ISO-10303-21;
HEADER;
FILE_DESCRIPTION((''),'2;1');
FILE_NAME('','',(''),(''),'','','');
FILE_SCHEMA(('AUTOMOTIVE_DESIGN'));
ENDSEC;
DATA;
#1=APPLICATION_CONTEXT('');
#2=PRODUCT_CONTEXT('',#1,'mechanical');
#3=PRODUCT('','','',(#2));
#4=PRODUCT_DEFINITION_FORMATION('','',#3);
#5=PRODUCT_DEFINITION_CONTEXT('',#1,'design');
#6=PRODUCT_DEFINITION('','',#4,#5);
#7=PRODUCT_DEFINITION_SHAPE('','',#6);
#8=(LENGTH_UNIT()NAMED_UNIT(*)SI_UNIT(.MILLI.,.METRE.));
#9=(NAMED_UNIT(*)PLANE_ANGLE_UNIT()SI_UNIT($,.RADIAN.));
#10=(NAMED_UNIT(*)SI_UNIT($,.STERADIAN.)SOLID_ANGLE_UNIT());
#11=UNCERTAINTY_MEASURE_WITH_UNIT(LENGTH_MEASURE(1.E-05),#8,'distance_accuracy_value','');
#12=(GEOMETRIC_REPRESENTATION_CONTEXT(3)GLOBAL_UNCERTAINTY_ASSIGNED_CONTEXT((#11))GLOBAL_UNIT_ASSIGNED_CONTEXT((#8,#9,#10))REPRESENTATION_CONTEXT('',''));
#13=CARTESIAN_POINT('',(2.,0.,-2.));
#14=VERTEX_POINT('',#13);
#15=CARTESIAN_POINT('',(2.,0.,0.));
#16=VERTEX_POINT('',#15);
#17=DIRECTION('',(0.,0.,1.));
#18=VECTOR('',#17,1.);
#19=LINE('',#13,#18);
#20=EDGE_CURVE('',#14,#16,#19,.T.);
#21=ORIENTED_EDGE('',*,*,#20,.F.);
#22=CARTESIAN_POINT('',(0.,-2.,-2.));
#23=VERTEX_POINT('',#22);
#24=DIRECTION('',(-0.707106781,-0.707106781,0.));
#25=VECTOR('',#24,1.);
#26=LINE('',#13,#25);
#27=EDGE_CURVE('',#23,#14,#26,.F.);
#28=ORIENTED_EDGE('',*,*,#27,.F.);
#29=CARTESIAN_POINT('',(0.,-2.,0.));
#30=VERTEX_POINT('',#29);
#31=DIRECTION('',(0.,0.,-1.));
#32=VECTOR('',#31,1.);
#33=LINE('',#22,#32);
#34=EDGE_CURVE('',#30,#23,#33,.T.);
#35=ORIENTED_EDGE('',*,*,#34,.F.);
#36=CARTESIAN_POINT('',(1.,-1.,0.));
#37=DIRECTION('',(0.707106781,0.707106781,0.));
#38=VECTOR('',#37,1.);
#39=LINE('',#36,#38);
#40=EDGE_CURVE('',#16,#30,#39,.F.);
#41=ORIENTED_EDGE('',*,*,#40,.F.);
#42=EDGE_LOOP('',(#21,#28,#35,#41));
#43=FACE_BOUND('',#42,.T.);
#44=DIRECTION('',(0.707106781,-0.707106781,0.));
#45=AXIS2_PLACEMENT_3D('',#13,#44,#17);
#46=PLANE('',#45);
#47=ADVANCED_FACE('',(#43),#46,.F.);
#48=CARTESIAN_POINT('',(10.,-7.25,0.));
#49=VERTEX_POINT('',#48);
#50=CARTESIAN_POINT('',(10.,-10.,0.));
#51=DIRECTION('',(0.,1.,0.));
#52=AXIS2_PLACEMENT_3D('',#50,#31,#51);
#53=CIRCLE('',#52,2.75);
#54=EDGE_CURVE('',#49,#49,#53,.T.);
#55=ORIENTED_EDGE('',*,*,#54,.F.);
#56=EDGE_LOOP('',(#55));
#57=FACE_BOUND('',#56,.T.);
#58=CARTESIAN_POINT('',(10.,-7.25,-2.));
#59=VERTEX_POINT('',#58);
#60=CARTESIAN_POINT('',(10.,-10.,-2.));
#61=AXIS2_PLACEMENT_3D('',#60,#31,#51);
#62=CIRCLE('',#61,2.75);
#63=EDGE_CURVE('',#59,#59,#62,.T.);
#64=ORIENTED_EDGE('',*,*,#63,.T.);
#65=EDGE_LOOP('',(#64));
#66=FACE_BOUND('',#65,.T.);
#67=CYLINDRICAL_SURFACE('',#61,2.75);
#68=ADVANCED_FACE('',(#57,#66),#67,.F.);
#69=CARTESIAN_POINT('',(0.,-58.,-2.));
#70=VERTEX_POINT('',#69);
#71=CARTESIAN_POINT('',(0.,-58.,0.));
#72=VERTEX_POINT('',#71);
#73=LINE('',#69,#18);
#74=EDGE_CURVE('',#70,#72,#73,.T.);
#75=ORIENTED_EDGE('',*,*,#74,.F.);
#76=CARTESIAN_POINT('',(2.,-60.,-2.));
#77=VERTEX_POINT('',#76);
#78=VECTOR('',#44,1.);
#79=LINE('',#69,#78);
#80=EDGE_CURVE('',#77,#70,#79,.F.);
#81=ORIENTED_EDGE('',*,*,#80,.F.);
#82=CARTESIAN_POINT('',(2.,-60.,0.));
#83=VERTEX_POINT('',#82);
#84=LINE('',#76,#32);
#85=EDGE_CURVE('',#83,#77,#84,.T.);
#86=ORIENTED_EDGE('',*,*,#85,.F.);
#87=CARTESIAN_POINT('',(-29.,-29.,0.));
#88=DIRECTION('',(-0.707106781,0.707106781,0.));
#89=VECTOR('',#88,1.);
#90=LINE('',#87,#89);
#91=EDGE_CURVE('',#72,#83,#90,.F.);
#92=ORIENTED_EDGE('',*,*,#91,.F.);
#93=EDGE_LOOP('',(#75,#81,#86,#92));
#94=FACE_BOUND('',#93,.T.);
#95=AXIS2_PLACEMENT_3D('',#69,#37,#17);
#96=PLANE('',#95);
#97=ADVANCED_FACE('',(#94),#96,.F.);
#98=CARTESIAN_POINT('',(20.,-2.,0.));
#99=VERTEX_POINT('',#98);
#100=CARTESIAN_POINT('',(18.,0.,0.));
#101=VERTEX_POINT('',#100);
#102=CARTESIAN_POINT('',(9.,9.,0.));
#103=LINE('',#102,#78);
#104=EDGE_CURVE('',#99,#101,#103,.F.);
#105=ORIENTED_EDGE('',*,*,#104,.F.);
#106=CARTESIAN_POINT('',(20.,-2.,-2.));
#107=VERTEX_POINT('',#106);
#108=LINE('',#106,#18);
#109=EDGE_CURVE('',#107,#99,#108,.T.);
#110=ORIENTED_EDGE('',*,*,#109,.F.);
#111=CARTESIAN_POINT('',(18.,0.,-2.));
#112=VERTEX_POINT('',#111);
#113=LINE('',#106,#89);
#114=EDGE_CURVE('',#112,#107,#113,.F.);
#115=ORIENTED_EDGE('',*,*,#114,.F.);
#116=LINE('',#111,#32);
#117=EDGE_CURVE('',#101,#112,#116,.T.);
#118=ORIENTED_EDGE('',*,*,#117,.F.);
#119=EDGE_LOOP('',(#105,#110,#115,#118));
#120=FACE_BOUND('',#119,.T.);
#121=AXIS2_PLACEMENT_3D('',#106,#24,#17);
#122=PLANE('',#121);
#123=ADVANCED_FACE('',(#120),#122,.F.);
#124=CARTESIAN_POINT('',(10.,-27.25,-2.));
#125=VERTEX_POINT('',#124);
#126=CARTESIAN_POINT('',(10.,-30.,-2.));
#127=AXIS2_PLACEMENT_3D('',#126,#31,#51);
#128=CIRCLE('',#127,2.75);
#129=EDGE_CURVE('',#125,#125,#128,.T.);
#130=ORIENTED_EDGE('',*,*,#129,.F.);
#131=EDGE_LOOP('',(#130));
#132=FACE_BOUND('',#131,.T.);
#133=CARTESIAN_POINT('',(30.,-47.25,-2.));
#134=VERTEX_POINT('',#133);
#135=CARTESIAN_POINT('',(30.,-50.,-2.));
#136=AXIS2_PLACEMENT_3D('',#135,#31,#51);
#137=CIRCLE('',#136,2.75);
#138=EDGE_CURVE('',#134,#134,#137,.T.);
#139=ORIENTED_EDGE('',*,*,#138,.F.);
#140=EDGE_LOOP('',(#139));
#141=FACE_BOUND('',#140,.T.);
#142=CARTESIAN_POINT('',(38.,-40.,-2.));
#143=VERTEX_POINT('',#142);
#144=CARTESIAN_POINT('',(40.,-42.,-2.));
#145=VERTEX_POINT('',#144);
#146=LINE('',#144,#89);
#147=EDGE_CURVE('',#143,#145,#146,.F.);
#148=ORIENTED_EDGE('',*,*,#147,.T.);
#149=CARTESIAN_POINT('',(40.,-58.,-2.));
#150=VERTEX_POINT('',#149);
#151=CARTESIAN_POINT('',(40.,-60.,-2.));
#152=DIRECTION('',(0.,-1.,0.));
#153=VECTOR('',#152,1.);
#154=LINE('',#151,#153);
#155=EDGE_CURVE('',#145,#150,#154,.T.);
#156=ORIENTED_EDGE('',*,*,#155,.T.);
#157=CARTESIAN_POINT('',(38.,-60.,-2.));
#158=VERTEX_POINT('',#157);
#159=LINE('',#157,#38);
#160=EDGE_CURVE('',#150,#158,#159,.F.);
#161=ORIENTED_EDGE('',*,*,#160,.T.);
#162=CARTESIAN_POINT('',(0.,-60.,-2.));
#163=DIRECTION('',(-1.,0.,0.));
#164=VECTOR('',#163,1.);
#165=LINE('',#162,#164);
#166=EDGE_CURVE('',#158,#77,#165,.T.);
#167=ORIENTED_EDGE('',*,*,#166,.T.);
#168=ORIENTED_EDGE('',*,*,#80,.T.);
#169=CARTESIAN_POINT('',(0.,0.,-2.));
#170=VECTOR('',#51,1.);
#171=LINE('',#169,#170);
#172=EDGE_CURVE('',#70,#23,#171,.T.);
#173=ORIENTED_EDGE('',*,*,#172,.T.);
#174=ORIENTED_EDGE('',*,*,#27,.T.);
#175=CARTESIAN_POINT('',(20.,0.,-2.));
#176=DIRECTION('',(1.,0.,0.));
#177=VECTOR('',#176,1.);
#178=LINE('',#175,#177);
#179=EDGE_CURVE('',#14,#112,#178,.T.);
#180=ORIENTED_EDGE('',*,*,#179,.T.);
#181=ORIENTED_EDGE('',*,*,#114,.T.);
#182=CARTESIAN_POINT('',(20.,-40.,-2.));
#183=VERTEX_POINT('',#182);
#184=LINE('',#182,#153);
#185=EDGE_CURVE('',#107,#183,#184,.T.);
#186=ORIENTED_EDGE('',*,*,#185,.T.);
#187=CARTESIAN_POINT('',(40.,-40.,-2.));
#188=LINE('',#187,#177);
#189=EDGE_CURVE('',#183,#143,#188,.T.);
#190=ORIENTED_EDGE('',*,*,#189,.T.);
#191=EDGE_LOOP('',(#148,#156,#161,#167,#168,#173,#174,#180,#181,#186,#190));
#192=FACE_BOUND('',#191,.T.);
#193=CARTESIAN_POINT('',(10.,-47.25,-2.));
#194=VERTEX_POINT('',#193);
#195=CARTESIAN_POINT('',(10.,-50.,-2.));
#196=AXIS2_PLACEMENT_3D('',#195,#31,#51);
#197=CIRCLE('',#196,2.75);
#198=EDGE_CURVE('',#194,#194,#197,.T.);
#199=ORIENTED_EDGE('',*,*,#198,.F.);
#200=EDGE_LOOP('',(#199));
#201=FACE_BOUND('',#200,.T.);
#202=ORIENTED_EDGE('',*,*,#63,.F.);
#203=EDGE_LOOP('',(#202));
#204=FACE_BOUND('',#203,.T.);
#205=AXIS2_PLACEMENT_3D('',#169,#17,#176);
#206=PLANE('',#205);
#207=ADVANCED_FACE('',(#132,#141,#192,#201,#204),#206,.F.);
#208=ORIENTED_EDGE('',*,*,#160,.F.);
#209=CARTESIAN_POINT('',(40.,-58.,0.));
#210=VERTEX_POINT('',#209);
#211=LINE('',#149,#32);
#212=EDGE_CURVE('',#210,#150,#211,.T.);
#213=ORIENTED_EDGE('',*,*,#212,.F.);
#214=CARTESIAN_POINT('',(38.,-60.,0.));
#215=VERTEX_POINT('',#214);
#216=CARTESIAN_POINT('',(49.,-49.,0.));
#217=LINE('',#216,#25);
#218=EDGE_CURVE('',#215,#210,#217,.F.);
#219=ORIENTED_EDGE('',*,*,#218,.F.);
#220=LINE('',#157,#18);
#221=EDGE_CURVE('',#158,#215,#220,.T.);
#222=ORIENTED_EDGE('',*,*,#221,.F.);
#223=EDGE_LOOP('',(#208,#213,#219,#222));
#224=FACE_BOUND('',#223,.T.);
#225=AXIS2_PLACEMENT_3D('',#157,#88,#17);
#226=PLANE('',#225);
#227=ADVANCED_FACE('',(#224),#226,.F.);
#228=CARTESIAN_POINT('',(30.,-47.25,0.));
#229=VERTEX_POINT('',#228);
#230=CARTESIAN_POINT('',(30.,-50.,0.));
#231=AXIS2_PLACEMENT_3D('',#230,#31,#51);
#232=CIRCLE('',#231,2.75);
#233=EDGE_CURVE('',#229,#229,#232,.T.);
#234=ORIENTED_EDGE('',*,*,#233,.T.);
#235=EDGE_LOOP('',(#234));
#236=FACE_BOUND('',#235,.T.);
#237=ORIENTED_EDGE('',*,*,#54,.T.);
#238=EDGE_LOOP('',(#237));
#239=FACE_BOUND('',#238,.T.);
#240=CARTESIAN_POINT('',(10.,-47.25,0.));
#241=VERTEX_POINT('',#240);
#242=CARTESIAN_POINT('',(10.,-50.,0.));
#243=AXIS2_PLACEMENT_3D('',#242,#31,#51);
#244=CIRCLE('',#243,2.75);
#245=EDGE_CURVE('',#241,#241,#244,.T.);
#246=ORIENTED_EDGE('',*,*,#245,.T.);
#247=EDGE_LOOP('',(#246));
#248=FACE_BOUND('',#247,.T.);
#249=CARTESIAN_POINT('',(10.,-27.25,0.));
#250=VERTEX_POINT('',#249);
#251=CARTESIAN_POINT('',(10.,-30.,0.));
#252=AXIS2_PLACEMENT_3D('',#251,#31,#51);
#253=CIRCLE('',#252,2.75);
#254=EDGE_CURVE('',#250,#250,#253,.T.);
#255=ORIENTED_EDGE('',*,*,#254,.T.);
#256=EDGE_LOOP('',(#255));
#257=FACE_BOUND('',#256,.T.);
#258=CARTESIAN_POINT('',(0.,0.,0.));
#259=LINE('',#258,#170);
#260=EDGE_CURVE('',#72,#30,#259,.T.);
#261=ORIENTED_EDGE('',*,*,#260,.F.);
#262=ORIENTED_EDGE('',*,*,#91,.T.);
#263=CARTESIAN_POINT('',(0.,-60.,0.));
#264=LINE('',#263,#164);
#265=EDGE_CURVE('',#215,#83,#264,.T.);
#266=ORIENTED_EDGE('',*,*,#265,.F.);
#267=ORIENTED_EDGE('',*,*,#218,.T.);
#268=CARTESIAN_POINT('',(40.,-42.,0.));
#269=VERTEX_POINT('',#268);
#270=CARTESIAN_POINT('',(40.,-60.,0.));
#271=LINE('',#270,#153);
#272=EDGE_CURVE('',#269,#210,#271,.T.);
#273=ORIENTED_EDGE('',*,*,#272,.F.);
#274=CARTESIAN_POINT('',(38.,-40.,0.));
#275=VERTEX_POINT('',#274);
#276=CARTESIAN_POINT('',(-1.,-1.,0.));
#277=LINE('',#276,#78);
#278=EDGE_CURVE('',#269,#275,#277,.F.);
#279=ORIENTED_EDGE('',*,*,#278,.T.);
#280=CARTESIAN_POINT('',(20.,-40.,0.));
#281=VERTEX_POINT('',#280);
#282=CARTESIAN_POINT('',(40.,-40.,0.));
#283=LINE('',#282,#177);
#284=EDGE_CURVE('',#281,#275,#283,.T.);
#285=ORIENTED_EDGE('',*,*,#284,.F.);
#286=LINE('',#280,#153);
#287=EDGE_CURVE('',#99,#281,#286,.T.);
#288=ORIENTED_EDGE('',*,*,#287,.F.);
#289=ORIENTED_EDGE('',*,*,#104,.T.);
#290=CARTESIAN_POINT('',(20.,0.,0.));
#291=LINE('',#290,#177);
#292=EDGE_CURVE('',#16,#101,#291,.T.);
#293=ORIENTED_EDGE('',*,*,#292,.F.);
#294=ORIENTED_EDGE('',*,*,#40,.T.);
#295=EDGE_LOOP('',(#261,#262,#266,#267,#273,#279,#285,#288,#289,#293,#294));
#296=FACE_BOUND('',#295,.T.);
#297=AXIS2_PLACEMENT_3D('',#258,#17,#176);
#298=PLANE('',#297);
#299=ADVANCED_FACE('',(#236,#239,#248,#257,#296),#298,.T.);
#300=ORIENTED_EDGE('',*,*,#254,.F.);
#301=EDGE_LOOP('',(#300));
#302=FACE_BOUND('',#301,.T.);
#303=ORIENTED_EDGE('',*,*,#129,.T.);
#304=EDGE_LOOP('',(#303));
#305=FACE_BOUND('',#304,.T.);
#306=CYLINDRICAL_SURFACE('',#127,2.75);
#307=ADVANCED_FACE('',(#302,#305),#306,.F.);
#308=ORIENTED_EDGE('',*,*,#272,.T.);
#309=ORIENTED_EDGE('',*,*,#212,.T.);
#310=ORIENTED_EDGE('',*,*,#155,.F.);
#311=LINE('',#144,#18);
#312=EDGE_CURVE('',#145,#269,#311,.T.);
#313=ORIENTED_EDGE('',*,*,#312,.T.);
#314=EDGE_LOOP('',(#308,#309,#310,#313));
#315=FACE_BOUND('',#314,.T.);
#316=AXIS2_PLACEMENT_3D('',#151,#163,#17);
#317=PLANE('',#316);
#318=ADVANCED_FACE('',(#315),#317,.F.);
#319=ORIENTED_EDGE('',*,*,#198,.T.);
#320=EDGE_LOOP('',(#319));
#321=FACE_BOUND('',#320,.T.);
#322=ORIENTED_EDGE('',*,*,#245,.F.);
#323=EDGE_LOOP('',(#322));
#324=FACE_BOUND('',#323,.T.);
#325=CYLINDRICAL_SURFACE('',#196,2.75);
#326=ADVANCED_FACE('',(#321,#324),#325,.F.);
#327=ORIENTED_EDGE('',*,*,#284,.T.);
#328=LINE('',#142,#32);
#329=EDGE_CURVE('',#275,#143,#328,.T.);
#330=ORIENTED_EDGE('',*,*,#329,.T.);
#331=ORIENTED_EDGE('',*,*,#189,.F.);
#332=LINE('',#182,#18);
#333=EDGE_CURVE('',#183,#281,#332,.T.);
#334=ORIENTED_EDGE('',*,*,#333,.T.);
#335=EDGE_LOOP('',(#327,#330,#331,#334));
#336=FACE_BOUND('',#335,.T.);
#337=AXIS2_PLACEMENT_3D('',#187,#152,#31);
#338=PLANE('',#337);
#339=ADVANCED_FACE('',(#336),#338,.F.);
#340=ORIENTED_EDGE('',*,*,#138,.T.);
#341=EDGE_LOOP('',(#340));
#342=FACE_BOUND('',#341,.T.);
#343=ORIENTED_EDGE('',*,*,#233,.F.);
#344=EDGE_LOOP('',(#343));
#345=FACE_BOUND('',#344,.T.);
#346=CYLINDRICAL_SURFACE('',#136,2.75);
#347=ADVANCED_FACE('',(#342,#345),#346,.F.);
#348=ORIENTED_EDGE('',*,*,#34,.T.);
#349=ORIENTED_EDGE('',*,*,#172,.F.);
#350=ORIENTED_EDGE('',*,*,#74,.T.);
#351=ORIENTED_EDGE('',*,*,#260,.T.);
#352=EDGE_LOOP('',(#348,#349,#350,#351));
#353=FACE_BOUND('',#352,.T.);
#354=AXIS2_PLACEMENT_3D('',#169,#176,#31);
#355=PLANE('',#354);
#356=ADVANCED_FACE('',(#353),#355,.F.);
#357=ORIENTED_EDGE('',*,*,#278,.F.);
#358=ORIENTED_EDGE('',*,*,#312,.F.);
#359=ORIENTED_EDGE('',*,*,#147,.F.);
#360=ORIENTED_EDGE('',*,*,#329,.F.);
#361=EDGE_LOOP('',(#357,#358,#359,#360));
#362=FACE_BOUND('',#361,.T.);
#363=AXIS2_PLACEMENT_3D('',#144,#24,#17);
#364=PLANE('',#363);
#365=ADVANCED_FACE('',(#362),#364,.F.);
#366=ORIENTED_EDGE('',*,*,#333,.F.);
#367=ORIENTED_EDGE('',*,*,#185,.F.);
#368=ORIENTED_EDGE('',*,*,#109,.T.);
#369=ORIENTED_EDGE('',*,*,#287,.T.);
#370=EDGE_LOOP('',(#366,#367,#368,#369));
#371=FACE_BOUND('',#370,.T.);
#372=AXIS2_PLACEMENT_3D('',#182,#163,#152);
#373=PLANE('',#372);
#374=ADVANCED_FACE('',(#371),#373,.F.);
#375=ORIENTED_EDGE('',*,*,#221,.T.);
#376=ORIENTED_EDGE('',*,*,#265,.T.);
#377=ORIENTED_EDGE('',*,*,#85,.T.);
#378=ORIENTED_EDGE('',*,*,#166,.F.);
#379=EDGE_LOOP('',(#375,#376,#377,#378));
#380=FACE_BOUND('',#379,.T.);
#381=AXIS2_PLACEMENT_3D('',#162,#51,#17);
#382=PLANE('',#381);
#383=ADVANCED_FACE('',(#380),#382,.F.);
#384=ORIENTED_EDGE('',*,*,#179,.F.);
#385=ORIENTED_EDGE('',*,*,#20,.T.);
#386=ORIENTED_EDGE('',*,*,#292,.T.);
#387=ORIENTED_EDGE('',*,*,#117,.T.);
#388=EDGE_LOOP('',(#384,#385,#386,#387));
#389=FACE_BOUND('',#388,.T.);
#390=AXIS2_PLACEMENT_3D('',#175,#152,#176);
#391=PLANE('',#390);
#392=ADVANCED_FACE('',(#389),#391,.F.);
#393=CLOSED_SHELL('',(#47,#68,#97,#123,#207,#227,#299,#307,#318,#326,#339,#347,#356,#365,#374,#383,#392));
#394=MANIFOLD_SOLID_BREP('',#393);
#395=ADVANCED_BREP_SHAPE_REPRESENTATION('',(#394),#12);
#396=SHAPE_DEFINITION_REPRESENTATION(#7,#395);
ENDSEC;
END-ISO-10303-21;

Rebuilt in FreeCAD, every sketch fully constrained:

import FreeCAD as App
import Part
import Sketcher

V = App.Vector
Q = App.Units.Quantity


def edges_at(feature, points):
    """Names of the edges that pass closest to the given points."""
    edges = feature.Shape.Edges
    near = lambda p: min(range(len(edges)), key=lambda i: edges[i].distToShape(Part.Vertex(*p))[0])
    return sorted({f"Edge{near(p) + 1}" for p in points})


def add_polygon(sketch, points):
    """Adds a closed chain of lines whose ends are joined by coincident constraints."""
    first, n = sketch.GeometryCount, len(points)
    for a, b in zip(points, points[1:] + points[:1]):
        sketch.addGeometry(Part.LineSegment(App.Vector(*a, 0), App.Vector(*b, 0)), False)
    for i in range(n):
        sketch.addConstraint(Sketcher.Constraint("Coincident", first + i, 2, first + (i + 1) % n, 1))

doc = App.newDocument("Part")
body = doc.addObject("PartDesign::Body", "Body")

# Sketch on XY plane
sketch1 = doc.addObject("Sketcher::SketchObject", "Sketch")
body.addObject(sketch1)
sketch1.AttachmentSupport = (doc.XY_Plane, [""])
sketch1.MapMode = "FlatFace"
add_polygon(sketch1, [(0, -60), (0, 0), (20, 0), (20, -40), (40, -40), (40, -60)])  # lines 0-5
sketch1.addConstraint(Sketcher.Constraint("Vertical", 0))
sketch1.addConstraint(Sketcher.Constraint("Horizontal", 1))
sketch1.addConstraint(Sketcher.Constraint("Vertical", 2))
sketch1.addConstraint(Sketcher.Constraint("Horizontal", 3))
sketch1.addConstraint(Sketcher.Constraint("Vertical", 4))
sketch1.addConstraint(Sketcher.Constraint("Horizontal", 5))
sketch1.addConstraint(Sketcher.Constraint("Coincident", 0, 2, -1, 1))
sketch1.addConstraint(Sketcher.Constraint("Equal", 1, 3))
sketch1.addConstraint(Sketcher.Constraint("Equal", 5, 2))
sketch1.addConstraint(Sketcher.Constraint("Equal", 3, 4))
sketch1.addConstraint(Sketcher.Constraint("DistanceX", 1, 1, 1, 2, Q("20 mm")))
pad1 = doc.addObject("PartDesign::Pad", "Pad")
body.addObject(pad1)
pad1.Profile = sketch1
pad1.Length = 2
pad1.Reversed = True

# Sketch on XY plane
sketch2 = doc.addObject("Sketcher::SketchObject", "Sketch001")
body.addObject(sketch2)
sketch2.AttachmentSupport = (doc.XY_Plane, [""])
sketch2.MapMode = "FlatFace"
sketch2.AttachmentOffset = App.Placement(V(0, 0, -2), App.Rotation())
sketch2.addGeometry(Part.Circle(V(30, -50, 0), V(0, 0, 1), 2.75), False)
sketch2.addGeometry(Part.Circle(V(10, -50, 0), V(0, 0, 1), 2.75), False)
sketch2.addGeometry(Part.Circle(V(10, -30, 0), V(0, 0, 1), 2.75), False)
sketch2.addGeometry(Part.Circle(V(10, -10, 0), V(0, 0, 1), 2.75), False)
sketch2.addConstraint(Sketcher.Constraint("Equal", 0, 1))
sketch2.addConstraint(Sketcher.Constraint("Equal", 1, 2))
sketch2.addConstraint(Sketcher.Constraint("Equal", 2, 3))
sketch2.addConstraint(Sketcher.Constraint("Horizontal", 0, 3, 1, 3))
sketch2.addConstraint(Sketcher.Constraint("Vertical", 1, 3, 2, 3))
sketch2.addConstraint(Sketcher.Constraint("Vertical", 2, 3, 3, 3))
sketch2.addConstraint(Sketcher.Constraint("Diameter", 0, Q("5.5 mm")))
sketch2.addConstraint(Sketcher.Constraint("DistanceX", -1, 1, 0, 3, Q("30 mm")))
sketch2.addConstraint(Sketcher.Constraint("DistanceY", 0, 3, -1, 1, Q("50 mm")))
sketch2.addConstraint(Sketcher.Constraint("DistanceX", -1, 1, 1, 3, Q("10 mm")))
sketch2.addConstraint(Sketcher.Constraint("DistanceY", 2, 3, -1, 1, Q("30 mm")))
sketch2.addConstraint(Sketcher.Constraint("DistanceY", 3, 3, -1, 1, Q("10 mm")))
doc.recompute()
hole = doc.addObject("PartDesign::Hole", "Hole")
body.addObject(hole)
hole.Profile = sketch2
hole.ThreadType = "None"
hole.Diameter = 5.5
hole.DepthType = "ThroughAll"
hole.Reversed = True
doc.recompute()

chamfer = doc.addObject("PartDesign::Chamfer", "Chamfer")
body.addObject(chamfer)
chamfer.Base = (hole, edges_at(hole, [
    (0, 0, -1),
    (0, -60, -1),
    (40, -60, -1),
    (40, -40, -1),
    (20, 0, -1),
]))
chamfer.Size = 2

doc.recompute()
